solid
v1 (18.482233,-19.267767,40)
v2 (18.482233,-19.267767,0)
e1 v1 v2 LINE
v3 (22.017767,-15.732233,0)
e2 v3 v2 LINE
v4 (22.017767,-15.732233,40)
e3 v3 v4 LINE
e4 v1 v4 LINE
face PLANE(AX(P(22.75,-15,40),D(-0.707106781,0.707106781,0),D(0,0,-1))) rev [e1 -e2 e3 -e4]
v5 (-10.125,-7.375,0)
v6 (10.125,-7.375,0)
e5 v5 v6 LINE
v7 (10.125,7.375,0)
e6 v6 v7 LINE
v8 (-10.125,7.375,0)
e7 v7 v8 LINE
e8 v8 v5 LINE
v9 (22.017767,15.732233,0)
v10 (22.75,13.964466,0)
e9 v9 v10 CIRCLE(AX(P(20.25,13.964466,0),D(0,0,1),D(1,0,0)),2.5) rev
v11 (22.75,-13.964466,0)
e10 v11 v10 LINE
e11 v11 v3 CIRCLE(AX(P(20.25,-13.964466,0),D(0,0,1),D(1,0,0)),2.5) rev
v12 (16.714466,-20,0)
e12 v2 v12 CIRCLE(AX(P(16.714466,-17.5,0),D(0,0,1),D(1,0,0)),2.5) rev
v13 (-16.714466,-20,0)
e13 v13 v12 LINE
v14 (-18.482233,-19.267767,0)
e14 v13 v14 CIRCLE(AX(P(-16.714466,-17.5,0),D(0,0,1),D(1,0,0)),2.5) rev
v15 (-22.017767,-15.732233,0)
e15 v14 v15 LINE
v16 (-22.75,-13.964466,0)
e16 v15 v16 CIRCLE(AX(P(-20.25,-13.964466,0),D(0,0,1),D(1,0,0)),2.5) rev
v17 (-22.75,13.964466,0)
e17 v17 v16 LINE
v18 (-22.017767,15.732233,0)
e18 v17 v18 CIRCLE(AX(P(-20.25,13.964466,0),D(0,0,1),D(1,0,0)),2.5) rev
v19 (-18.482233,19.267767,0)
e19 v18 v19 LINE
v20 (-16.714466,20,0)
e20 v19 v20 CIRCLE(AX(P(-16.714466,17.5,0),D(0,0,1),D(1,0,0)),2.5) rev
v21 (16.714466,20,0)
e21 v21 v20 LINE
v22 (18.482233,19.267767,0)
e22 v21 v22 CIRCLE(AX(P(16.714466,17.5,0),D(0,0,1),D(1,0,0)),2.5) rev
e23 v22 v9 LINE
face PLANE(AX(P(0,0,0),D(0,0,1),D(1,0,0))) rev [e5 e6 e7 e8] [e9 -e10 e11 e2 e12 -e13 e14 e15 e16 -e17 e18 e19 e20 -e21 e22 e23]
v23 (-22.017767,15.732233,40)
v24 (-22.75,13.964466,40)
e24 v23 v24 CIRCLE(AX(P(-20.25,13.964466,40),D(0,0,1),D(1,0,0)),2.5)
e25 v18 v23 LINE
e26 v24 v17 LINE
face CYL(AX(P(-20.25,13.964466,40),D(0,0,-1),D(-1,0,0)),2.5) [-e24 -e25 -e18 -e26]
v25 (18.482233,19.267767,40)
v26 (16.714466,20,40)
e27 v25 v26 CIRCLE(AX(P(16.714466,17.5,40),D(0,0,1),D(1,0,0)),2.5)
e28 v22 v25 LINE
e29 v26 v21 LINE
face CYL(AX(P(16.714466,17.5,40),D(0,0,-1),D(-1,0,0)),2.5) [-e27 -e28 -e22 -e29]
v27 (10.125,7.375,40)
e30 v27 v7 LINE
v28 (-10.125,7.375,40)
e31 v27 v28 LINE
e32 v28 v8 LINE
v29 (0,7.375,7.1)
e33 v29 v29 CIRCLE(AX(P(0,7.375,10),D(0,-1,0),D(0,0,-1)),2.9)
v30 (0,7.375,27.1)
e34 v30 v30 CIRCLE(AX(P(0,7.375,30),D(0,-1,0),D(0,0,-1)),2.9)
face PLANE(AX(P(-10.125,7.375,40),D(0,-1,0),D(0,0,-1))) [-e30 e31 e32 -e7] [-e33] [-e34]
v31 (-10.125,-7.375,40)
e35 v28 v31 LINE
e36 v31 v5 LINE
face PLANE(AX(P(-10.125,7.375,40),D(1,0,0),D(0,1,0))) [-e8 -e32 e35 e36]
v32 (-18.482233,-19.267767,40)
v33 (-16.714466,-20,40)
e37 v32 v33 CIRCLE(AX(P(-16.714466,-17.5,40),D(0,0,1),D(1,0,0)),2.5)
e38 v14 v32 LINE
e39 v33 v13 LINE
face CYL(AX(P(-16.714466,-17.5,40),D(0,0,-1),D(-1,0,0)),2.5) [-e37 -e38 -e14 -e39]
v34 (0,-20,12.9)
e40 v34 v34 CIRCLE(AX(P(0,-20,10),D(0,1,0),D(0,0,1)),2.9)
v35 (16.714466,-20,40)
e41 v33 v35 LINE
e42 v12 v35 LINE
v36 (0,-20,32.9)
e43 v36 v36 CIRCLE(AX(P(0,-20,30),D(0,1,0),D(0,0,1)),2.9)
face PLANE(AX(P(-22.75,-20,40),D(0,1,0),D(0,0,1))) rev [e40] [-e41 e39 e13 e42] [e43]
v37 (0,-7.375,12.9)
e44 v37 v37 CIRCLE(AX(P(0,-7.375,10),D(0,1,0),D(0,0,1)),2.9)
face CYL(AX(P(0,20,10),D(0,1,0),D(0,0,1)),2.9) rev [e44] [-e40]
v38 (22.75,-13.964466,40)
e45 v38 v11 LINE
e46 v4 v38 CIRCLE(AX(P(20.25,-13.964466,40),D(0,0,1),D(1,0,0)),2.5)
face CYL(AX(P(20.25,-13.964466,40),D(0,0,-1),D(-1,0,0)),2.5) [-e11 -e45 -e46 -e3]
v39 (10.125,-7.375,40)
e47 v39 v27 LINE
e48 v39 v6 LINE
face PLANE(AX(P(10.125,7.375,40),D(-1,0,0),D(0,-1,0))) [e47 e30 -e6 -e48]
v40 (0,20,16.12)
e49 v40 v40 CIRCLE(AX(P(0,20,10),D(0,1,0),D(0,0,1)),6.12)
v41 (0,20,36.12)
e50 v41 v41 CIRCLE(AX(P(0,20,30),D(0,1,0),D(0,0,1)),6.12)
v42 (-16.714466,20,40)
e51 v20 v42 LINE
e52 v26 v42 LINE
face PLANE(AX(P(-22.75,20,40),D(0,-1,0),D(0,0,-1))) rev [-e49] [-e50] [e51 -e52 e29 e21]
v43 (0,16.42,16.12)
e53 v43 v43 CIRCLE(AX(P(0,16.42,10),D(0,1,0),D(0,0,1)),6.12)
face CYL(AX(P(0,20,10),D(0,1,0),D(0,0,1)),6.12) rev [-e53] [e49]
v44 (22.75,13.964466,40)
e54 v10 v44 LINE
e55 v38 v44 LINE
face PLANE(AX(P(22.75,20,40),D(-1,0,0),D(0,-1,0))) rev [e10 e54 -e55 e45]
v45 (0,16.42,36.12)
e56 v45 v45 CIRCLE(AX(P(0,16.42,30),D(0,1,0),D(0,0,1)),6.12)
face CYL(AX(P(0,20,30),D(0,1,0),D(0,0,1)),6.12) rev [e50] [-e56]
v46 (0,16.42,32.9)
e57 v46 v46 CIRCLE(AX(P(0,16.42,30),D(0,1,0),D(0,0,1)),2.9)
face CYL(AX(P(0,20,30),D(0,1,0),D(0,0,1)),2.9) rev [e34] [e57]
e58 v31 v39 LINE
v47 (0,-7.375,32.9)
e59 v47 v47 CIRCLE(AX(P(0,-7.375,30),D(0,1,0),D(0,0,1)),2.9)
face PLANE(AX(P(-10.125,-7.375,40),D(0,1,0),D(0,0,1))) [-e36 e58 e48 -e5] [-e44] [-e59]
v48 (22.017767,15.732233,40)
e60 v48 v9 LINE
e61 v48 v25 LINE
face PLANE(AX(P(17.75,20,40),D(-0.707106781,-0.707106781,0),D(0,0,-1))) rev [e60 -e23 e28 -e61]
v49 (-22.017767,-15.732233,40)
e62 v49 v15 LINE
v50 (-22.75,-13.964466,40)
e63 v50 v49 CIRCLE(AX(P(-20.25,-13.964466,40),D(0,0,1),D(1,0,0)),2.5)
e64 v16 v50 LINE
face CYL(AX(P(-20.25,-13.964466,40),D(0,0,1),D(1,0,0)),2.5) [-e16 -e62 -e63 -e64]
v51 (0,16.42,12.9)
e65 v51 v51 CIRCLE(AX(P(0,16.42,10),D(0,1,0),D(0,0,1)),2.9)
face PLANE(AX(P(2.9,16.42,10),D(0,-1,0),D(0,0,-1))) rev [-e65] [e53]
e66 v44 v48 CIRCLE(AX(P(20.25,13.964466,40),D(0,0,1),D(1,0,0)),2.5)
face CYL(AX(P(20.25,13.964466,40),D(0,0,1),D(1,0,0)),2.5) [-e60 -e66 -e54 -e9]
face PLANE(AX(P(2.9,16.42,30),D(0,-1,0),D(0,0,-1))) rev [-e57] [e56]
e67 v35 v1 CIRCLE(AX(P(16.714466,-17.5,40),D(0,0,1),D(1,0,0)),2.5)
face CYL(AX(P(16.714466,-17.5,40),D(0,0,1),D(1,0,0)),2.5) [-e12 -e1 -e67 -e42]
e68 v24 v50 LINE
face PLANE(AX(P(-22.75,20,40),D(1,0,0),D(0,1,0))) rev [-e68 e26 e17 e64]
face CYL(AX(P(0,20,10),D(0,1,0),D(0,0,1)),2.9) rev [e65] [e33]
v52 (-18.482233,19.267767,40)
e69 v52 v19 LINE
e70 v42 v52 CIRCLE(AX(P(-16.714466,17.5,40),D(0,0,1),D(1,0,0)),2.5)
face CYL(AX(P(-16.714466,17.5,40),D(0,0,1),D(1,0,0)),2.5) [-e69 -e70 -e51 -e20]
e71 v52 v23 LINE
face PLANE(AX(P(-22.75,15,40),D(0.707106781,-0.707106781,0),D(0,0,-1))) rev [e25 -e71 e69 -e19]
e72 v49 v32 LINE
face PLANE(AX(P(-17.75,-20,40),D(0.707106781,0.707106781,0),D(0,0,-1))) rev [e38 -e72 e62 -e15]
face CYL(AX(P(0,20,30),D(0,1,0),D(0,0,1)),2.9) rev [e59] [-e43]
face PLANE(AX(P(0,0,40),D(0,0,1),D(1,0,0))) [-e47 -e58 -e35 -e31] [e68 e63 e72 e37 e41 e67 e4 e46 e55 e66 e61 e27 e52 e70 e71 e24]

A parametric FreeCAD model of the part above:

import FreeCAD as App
import Part
import Sketcher
from FreeCAD import Vector


def edges_at(feature, points):
    """Names of the edges that pass closest to the given points."""
    edges = feature.Shape.Edges
    near = lambda p: min(range(len(edges)), key=lambda i: edges[i].distToShape(Part.Vertex(*p))[0])
    return sorted({f"Edge{near(p) + 1}" for p in points})


def add_polygon(sketch, points):
    """Adds a closed chain of lines whose ends are joined by coincident constraints."""
    first, n = sketch.GeometryCount, len(points)
    for a, b in zip(points, points[1:] + points[:1]):
        sketch.addGeometry(Part.LineSegment(App.Vector(*a, 0), App.Vector(*b, 0)), False)
    for i in range(n):
        sketch.addConstraint(Sketcher.Constraint("Coincident", first + i, 2, first + (i + 1) % n, 1))

doc = App.newDocument("Part")
params = doc.addObject("Spreadsheet::Sheet", "Params")
for row, (alias, value) in enumerate([
    ("sketch1_height", "40 mm"),
    ("sketch1_width", "45.5 mm"),
    ("sketch1_width2", "20.25 mm"),
    ("sketch1_height2", "14.75 mm"),
    ("pad1_length", "40 mm"),
    ("chamfer_size", "5 mm"),
    ("fillet_radius", "2.5 mm"),
    ("sketch2_diameter", "5.8 mm"),
    ("hole_diameter", "5.8 mm"),
    ("hole_cbore_diameter", "12.24 mm"),
    ("hole_cbore_depth", "3.58 mm"),
], start=1):
    params.set(f"A{row}", alias)
    params.set(f"B{row}", "=" + value)
    params.setAlias(f"B{row}", alias)

body = doc.addObject("PartDesign::Body", "Body")

sketch1 = body.newObject("Sketcher::SketchObject", "Sketch")
sketch1.AttachmentSupport = (doc.getObject("XY_Plane"), [""])
sketch1.MapMode = "FlatFace"
add_polygon(sketch1, [(-23, 20), (-23, -20), (23, -20), (23, 20)])
add_polygon(sketch1, [(10, -7), (-10, -7), (-10, 7), (10, 7)])
sketch1.addConstraint([
    Sketcher.Constraint("Vertical", 0),
    Sketcher.Constraint("Horizontal", 1),
    Sketcher.Constraint("Vertical", 2),
    Sketcher.Constraint("Horizontal", 3),
    Sketcher.Constraint("Horizontal", 4),
    Sketcher.Constraint("Vertical", 5),
    Sketcher.Constraint("Horizontal", 6),
    Sketcher.Constraint("Vertical", 7),
    Sketcher.Constraint("Symmetric", 0, 2, 2, 2, -1, 1),
    Sketcher.Constraint("Symmetric", 4, 2, 6, 2, -1, 1),
    Sketcher.Constraint("DistanceY", 0, 2, 0, 1, 40.0),
    Sketcher.Constraint("DistanceX", 1, 1, 1, 2, 45.5),
    Sketcher.Constraint("DistanceX", 4, 2, 4, 1, 20.25),
    Sketcher.Constraint("DistanceY", 5, 1, 5, 2, 14.75),
])
sketch1.setExpression("Constraints[18]", "Params.sketch1_height")
sketch1.setExpression("Constraints[19]", "Params.sketch1_width")
sketch1.setExpression("Constraints[20]", "Params.sketch1_width2")
sketch1.setExpression("Constraints[21]", "Params.sketch1_height2")
pad1 = body.newObject("PartDesign::Pad", "Pad")
pad1.Profile = sketch1
pad1.setExpression("Length", "Params.pad1_length")
doc.recompute()

chamfer = body.newObject("PartDesign::Chamfer", "Chamfer")
chamfer.Base = (pad1, edges_at(pad1, [
    (22.75, -20, 20),
    (-22.75, -20, 20),
    (-22.75, 20, 20),
    (22.75, 20, 20),
]))
chamfer.setExpression("Size", "Params.chamfer_size")
doc.recompute()

fillet = body.newObject("PartDesign::Fillet", "Fillet")
fillet.Base = (chamfer, edges_at(chamfer, [
    (-17.75, 20, 20),
    (17.75, 20, 20),
    (22.75, -15, 20),
    (22.75, 15, 20),
    (-17.75, -20, 20),
    (17.75, -20, 20),
    (-22.75, 15, 20),
    (-22.75, -15, 20),
]))
fillet.setExpression("Radius", "Params.fillet_radius")

sketch2 = body.newObject("Sketcher::SketchObject", "Sketch001")
sketch2.AttachmentSupport = (doc.getObject("XZ_Plane"), [""])
sketch2.MapMode = "FlatFace"
sketch2.AttachmentOffset = App.Placement(Vector(0, 0, -20), App.Rotation())
sketch2.addGeometry(Part.Circle(Vector(0, 10, 0), Vector(0, 0, 1), 2.9), False)
sketch2.addConstraint([
    Sketcher.Constraint("PointOnObject", 0, 3, -2),
    Sketcher.Constraint("Diameter", 0, 5.8),
    Sketcher.Constraint("DistanceY", -1, 1, 0, 3, 10.0),
])
sketch2.setExpression("Constraints[1]", "Params.sketch2_diameter")
doc.recompute()
hole = body.newObject("PartDesign::Hole", "Hole")
hole.Profile = sketch2
hole.ThreadType = "None"
hole.setExpression("Diameter", "Params.hole_diameter")
hole.DepthType = "ThroughAll"
hole.HoleCutType = "Counterbore"
hole.setExpression("HoleCutDiameter", "Params.hole_cbore_diameter")
hole.setExpression("HoleCutDepth", "Params.hole_cbore_depth")
hole.Reversed = True
doc.recompute()

datumplane = body.newObject("PartDesign::Plane", "DatumPlane")
datumplane.AttachmentSupport = (doc.getObject("XY_Plane"), [""])
datumplane.MapMode = "FlatFace"
datumplane.AttachmentOffset = App.Placement(Vector(0, 0, 20), App.Rotation())
mirrored = body.newObject("PartDesign::Mirrored", "Mirrored")
mirrored.Originals = [hole]
mirrored.MirrorPlane = (datumplane, [""])
body.Tip = mirrored

doc.recompute()
